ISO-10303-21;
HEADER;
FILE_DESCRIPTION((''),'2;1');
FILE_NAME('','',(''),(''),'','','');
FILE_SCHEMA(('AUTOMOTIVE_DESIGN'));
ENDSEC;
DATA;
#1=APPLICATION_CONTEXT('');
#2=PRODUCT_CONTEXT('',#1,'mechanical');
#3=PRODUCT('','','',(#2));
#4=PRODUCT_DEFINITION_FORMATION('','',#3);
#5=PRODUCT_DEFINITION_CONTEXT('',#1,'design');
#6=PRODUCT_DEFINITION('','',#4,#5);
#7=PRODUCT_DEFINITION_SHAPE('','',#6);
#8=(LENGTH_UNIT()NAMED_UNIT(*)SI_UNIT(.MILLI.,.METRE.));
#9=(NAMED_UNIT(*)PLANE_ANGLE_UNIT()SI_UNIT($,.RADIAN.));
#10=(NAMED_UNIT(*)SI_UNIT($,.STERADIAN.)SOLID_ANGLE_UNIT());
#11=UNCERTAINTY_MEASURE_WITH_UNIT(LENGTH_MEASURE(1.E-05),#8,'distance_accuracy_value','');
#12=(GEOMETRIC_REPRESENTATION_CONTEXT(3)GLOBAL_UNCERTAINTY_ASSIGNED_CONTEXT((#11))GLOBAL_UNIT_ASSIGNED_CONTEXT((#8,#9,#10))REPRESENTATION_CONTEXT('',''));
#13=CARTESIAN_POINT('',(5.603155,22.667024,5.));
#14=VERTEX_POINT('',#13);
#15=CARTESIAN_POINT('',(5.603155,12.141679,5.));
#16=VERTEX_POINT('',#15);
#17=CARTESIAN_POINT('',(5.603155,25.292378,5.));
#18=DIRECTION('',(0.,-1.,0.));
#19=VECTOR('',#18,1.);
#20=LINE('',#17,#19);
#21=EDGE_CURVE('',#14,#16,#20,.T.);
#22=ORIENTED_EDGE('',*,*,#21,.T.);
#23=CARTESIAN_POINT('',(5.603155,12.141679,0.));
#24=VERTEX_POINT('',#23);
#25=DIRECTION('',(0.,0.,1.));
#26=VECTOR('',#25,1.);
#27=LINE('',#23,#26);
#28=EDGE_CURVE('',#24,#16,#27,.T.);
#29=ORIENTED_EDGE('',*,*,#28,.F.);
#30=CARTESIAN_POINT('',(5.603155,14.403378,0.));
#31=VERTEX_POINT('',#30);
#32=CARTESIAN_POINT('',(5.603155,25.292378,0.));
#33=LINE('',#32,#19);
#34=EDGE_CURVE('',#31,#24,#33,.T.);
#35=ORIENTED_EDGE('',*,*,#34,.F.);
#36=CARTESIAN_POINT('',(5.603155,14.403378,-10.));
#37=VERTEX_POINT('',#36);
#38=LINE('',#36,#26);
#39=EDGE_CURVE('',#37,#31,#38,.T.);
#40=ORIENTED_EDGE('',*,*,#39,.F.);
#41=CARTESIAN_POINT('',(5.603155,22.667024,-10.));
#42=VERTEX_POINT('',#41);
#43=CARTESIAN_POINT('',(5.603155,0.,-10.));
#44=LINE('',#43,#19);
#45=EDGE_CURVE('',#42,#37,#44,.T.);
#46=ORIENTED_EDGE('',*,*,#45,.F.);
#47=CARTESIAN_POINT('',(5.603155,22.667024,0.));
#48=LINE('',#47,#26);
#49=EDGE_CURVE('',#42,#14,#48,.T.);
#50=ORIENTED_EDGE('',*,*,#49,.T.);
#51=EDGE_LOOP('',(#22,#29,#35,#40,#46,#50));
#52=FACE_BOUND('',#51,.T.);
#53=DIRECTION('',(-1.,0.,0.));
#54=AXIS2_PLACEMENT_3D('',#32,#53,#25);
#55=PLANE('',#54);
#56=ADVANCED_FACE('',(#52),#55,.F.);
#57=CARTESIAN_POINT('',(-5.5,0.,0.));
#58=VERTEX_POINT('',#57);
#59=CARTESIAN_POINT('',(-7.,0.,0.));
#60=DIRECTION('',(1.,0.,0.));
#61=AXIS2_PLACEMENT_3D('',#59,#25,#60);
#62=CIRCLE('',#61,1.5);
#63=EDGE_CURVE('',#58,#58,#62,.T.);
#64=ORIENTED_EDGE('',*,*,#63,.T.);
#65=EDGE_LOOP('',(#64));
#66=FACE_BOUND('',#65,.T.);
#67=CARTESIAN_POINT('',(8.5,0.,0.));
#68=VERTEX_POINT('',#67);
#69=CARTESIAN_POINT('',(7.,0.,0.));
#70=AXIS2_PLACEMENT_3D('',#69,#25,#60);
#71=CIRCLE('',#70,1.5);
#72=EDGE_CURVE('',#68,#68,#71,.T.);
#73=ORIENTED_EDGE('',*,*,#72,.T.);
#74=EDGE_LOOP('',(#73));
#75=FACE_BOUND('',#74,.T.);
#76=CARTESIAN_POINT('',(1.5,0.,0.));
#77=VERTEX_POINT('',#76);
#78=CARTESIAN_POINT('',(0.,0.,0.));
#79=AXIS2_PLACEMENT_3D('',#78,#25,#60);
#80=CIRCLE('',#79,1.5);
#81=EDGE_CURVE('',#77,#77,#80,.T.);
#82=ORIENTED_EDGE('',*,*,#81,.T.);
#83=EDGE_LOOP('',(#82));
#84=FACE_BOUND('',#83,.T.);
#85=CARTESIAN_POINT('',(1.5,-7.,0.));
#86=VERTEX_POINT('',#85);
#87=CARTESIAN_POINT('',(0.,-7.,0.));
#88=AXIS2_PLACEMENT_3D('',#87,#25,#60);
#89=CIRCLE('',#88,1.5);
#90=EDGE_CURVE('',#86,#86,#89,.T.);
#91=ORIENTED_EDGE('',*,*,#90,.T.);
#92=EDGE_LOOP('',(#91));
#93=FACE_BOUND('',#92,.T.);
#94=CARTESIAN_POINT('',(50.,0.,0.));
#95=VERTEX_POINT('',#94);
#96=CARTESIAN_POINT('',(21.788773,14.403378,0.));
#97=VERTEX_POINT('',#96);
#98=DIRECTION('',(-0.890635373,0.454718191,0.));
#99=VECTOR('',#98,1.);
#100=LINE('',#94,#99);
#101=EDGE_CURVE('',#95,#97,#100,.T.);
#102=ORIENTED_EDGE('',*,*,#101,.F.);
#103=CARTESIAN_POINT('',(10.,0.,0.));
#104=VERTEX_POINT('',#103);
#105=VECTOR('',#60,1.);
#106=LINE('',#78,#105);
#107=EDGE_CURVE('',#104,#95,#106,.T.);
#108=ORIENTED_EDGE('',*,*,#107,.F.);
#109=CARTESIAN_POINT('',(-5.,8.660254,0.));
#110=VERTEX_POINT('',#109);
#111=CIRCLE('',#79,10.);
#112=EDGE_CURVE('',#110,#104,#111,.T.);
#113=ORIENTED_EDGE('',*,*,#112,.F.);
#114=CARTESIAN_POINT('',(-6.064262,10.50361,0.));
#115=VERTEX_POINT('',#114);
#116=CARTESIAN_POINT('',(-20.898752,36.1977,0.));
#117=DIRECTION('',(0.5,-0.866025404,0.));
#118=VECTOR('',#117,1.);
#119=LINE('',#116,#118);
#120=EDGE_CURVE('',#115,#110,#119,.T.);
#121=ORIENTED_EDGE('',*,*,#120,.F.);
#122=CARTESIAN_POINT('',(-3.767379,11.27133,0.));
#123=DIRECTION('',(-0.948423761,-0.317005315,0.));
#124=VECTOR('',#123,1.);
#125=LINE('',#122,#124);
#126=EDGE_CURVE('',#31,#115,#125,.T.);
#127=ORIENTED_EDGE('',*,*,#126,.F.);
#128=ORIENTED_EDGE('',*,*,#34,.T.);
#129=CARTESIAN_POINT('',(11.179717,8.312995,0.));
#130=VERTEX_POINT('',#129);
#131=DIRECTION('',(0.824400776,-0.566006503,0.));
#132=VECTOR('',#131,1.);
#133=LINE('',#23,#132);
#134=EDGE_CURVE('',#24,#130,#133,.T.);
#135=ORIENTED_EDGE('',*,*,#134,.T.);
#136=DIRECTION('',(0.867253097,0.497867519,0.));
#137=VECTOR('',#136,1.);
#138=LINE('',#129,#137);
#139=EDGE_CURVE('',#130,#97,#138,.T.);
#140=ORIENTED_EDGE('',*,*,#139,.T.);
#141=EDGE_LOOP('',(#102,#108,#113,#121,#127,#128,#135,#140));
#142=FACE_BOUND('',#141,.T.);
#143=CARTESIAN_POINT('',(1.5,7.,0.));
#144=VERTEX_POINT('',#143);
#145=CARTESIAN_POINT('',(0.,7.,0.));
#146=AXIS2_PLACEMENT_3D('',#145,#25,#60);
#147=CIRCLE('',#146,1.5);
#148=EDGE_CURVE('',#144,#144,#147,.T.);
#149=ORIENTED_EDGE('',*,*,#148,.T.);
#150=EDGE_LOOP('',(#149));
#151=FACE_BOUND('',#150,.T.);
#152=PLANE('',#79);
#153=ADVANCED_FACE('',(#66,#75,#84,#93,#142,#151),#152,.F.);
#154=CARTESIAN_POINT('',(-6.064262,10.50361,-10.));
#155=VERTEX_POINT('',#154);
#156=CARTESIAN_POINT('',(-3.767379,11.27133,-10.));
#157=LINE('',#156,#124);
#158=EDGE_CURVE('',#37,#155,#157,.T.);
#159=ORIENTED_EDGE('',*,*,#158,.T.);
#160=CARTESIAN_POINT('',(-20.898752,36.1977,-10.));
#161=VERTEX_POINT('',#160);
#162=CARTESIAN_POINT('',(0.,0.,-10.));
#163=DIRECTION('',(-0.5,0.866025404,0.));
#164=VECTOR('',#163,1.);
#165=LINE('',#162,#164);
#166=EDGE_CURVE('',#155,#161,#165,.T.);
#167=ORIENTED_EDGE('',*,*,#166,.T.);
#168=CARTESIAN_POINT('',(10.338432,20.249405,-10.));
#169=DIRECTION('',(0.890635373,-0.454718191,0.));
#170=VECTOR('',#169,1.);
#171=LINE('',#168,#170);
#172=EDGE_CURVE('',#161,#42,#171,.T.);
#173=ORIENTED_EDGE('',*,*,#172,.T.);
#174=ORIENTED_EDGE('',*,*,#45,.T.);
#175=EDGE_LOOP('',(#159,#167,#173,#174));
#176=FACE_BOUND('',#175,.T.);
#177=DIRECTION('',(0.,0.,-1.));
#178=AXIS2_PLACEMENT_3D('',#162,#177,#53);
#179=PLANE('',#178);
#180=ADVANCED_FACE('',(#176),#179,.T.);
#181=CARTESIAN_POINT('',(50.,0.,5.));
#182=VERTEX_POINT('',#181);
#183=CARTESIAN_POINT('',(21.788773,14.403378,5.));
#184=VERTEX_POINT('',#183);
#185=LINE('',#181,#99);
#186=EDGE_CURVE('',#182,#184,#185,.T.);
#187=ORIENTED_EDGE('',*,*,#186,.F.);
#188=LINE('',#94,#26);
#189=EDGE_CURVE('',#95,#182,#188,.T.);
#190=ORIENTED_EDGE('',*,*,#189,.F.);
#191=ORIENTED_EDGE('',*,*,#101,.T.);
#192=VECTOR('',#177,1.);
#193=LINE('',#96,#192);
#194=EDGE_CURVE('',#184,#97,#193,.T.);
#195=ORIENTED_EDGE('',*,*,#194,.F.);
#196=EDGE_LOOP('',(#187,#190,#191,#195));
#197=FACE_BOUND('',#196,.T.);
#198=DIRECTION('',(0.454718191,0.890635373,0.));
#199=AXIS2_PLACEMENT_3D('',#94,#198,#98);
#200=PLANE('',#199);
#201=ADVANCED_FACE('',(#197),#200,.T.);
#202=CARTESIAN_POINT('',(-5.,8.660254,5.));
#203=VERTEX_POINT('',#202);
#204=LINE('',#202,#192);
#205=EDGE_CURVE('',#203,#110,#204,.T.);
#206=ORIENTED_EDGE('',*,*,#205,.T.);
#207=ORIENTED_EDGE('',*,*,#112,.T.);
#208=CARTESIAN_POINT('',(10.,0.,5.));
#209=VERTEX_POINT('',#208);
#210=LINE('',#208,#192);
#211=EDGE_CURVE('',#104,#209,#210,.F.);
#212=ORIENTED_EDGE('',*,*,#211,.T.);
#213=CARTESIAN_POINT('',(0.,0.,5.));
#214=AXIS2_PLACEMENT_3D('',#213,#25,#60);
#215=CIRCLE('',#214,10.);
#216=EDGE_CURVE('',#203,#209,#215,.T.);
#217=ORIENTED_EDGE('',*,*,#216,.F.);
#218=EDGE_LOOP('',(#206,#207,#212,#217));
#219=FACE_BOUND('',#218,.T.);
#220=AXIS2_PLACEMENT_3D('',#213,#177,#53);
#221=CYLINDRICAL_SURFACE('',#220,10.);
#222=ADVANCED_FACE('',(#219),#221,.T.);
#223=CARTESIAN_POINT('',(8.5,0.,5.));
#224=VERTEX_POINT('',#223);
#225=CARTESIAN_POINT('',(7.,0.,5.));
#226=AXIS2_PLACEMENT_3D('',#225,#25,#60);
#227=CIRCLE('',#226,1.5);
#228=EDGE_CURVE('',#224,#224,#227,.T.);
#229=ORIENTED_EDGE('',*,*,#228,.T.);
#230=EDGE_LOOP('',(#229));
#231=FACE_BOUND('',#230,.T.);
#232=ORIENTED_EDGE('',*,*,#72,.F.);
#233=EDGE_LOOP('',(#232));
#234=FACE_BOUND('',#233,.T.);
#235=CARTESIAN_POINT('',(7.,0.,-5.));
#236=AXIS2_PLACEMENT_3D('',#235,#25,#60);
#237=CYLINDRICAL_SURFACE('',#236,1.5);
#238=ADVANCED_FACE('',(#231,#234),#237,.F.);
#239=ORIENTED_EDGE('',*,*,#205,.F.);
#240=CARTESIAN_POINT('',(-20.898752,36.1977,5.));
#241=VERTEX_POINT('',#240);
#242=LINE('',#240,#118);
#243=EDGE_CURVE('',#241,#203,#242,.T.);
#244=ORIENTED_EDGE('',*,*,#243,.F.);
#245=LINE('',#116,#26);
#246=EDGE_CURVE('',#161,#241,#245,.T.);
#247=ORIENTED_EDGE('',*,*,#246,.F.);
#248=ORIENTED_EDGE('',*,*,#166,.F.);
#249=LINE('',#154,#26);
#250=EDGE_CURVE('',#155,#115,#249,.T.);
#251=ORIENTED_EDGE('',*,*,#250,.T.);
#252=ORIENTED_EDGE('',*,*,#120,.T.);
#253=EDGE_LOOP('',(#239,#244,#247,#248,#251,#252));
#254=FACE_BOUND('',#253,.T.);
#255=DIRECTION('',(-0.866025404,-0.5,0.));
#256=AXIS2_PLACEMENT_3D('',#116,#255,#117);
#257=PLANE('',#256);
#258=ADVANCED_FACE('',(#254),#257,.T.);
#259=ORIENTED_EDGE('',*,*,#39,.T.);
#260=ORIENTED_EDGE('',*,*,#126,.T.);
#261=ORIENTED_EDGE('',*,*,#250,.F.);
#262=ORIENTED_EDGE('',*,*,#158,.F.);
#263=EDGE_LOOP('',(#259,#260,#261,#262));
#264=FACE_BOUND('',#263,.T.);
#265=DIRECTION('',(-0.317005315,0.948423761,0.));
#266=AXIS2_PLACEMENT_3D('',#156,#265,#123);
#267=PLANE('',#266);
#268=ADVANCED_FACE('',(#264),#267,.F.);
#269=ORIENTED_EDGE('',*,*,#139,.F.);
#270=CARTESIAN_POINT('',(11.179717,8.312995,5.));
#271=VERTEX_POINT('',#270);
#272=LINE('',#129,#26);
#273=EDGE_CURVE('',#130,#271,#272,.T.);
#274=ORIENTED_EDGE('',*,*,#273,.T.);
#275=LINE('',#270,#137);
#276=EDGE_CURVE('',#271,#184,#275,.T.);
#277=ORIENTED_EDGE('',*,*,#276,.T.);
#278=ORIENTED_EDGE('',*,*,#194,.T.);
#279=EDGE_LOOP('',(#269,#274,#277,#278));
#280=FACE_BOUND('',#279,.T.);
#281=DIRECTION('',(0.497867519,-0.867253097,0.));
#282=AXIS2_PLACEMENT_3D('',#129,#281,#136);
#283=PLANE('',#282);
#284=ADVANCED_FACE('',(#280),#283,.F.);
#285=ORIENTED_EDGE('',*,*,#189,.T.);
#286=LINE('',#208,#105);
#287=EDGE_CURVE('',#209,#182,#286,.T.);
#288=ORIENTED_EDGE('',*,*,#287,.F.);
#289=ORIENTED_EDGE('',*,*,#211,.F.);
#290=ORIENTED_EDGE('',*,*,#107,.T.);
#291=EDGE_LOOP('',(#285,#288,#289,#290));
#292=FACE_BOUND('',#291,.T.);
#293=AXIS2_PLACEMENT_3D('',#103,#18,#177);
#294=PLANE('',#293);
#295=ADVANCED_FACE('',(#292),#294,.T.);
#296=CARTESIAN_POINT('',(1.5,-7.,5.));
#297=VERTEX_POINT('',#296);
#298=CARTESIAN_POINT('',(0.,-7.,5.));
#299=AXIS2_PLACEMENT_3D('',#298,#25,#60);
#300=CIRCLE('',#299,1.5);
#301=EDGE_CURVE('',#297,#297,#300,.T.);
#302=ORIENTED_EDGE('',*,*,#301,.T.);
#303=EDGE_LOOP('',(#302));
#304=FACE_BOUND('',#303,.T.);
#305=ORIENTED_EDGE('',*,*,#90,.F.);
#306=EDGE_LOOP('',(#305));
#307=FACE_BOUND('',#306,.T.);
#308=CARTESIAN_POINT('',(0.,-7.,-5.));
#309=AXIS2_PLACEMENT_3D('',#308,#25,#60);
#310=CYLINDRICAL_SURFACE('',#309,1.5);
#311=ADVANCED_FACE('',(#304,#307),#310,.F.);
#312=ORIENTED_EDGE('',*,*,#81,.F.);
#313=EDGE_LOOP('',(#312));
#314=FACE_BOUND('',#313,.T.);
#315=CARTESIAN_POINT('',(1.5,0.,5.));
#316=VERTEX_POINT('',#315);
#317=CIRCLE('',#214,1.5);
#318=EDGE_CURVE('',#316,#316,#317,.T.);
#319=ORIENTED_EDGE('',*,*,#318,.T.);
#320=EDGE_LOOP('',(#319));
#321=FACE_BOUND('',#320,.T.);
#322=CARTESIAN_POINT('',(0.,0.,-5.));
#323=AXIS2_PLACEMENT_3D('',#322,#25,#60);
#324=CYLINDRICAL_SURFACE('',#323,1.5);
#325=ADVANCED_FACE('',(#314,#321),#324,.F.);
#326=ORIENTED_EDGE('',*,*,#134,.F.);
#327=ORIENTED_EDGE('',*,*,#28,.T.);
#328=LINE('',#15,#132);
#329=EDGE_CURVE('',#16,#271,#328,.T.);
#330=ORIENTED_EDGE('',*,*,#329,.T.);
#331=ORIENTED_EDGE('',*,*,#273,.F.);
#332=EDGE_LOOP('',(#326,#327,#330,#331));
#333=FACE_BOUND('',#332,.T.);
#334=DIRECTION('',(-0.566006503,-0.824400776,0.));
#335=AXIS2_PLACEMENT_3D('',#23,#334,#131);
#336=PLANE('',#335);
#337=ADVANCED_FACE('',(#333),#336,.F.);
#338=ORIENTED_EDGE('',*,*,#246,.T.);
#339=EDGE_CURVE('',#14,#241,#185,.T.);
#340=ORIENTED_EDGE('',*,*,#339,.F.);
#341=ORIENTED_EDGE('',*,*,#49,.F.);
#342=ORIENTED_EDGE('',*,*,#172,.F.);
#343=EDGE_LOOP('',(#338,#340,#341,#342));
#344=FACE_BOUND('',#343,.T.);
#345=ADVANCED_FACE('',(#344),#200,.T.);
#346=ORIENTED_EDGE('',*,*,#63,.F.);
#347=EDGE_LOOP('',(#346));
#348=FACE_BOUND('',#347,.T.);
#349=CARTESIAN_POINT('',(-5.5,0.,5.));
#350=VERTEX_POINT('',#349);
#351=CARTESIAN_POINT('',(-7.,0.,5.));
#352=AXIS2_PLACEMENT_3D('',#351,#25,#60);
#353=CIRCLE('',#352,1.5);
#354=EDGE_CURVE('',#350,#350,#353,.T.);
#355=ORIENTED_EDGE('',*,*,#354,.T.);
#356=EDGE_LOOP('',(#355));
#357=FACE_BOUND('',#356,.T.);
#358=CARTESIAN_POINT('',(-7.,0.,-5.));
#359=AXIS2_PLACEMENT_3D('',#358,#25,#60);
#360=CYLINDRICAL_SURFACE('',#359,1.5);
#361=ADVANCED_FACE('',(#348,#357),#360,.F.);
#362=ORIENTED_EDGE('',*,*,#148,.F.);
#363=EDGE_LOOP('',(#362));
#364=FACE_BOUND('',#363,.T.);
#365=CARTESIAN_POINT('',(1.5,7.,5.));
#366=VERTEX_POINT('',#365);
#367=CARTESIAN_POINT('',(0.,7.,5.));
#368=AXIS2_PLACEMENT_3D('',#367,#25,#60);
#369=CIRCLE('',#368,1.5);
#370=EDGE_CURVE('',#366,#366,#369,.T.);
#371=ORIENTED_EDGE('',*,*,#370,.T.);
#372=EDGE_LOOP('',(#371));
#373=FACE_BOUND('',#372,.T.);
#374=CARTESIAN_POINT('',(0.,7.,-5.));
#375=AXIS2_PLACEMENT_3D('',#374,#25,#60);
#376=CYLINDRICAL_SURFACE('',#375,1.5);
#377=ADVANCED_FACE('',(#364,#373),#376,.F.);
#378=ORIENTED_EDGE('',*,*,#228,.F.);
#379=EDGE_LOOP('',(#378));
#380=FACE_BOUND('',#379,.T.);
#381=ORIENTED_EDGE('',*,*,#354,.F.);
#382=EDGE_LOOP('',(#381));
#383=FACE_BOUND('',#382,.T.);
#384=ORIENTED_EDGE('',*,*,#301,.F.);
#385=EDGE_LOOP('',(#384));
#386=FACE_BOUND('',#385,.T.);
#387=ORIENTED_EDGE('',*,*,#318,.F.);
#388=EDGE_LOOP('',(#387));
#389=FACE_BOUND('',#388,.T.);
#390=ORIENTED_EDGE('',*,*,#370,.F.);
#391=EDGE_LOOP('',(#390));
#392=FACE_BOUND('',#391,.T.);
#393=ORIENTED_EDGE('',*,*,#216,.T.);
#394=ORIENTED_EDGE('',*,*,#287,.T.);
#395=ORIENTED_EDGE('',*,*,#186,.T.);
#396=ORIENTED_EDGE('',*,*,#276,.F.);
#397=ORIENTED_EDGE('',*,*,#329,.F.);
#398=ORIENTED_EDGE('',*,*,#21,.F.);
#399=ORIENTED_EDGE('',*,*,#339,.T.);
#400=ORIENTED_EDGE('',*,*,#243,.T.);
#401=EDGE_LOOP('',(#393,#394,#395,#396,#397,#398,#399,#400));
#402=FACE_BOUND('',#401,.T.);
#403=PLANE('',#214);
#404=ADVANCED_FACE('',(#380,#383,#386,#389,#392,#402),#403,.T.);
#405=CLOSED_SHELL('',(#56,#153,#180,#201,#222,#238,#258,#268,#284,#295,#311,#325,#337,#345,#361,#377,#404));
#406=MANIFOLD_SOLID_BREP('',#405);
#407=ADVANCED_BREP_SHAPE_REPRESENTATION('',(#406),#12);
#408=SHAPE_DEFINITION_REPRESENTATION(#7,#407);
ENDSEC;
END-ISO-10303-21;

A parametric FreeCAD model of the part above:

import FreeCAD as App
import Part
import Sketcher

V = App.Vector
Q = App.Units.Quantity


def add_polygon(sketch, points):
    """Adds a closed chain of lines whose ends are joined by coincident constraints."""
    first, n = sketch.GeometryCount, len(points)
    for a, b in zip(points, points[1:] + points[:1]):
        sketch.addGeometry(Part.LineSegment(App.Vector(*a, 0), App.Vector(*b, 0)), False)
    for i in range(n):
        sketch.addConstraint(Sketcher.Constraint("Coincident", first + i, 2, first + (i + 1) % n, 1))

doc = App.newDocument("Part")
params = doc.addObject("Spreadsheet::Sheet", "Params")
for row, (alias, value) in enumerate([
    ("sketch1_diameter", "20 mm"),
    ("pad1_length", "5 mm"),
    ("sketch2_width", "50 mm"),
    ("pad2_length", "5 mm"),
    ("pocket1_length", "5 mm"),
    ("pad3_length", "10 mm"),
    ("sketch5_diameter", "3 mm"),
    ("pocket2_length", "10 mm"),
    ("sketch6_diameter", "3 mm"),
    ("pocket3_length", "10 mm"),
], start=1):
    params.set(f"A{row}", alias)
    params.set(f"B{row}", "=" + value)
    params.setAlias(f"B{row}", alias)

body = doc.addObject("PartDesign::Body", "Body")

# Sketch on XY plane
sketch1 = body.newObject("Sketcher::SketchObject", "Sketch")
sketch1.AttachmentSupport = (doc.getObject("XY_Plane"), [""])
sketch1.MapMode = "FlatFace"
sketch1.addGeometry(Part.Circle(V(0, 0, 0), V(0, 0, 1), 10), False)
sketch1.addConstraint(Sketcher.Constraint("Coincident", 0, 3, -1, 1))
sketch1.addConstraint(Sketcher.Constraint("Diameter", 0, 20.0))
sketch1.setExpression("Constraints[1]", "Params.sketch1_diameter")
pad1 = body.newObject("PartDesign::Pad", "Pad")
pad1.Profile = sketch1
pad1.setExpression("Length", "Params.pad1_length")

# Sketch on XY plane
sketch2 = body.newObject("Sketcher::SketchObject", "Sketch001")
sketch2.AttachmentSupport = (doc.getObject("XY_Plane"), [""])
sketch2.MapMode = "FlatFace"
sketch2.AttachmentOffset = App.Placement(V(0, 0, 5), App.Rotation())
add_polygon(sketch2, [(50, 0), (-21, 36), (0, 0)])  # lines 0-2
sketch2.addConstraint(Sketcher.Constraint("Horizontal", 2))
sketch2.addConstraint(Sketcher.Constraint("Coincident", 1, 2, -1, 1))
sketch2.addConstraint(Sketcher.Constraint("DistanceX", 2, 1, 2, 2, 50.0))
sketch2.addConstraint(Sketcher.Constraint("Angle", 1, Q("-60 deg")))
sketch2.addConstraint(Sketcher.Constraint("DistanceY", -1, 1, 0, 2, 36.1977))
sketch2.setExpression("Constraints[5]", "Params.sketch2_width")
pad2 = body.newObject("PartDesign::Pad", "Pad001")
pad2.Profile = sketch2
pad2.setExpression("Length", "Params.pad2_length")
pad2.Reversed = True

# Sketch on XY plane
sketch3 = body.newObject("Sketcher::SketchObject", "Sketch002")
sketch3.AttachmentSupport = (doc.getObject("XY_Plane"), [""])
sketch3.MapMode = "FlatFace"
sketch3.AttachmentOffset = App.Placement(V(0, 0, 5), App.Rotation())
add_polygon(sketch3, [(6, 25), (6, 12), (11, 8), (25, 16)])  # lines 0-3
sketch3.addConstraint(Sketcher.Constraint("Vertical", 0))
sketch3.addConstraint(Sketcher.Constraint("DistanceY", 0, 2, 0, 1, 13.150699))
sketch3.addConstraint(Sketcher.Constraint("DistanceY", 1, 2, 2, 2, 7.740601))
sketch3.addConstraint(Sketcher.Constraint("Distance", 2, 15.547512))
sketch3.addConstraint(Sketcher.Constraint("DistanceY", -1, 1, 0, 2, 12.141679))
sketch3.addConstraint(Sketcher.Constraint("DistanceX", 0, 2, 2, 2, 19.06019))
sketch3.addConstraint(Sketcher.Constraint("Distance", 1, 6.764382))
sketch3.addConstraint(Sketcher.Constraint("DistanceX", -1, 1, 0, 2, 5.603155))
pocket1 = body.newObject("PartDesign::Pocket", "Pocket")
pocket1.Profile = sketch3
pocket1.setExpression("Length", "Params.pocket1_length")

# Sketch on XY plane
sketch4 = body.newObject("Sketcher::SketchObject", "Sketch003")
sketch4.AttachmentSupport = (doc.getObject("XY_Plane"), [""])
sketch4.MapMode = "FlatFace"
add_polygon(sketch4, [(6, 23), (6, 14), (-6, 11), (-21, 36)])  # lines 0-3
sketch4.addConstraint(Sketcher.Constraint("Vertical", 0))
sketch4.addConstraint(Sketcher.Constraint("Angle", 2, Q("120 deg")))
sketch4.addConstraint(Sketcher.Constraint("DistanceY", -1, 1, 2, 2, 36.1977))
sketch4.addConstraint(Sketcher.Constraint("Distance", 2, 29.66898))
sketch4.addConstraint(Sketcher.Constraint("Distance", 3, 29.75618))
sketch4.addConstraint(Sketcher.Constraint("DistanceY", 0, 2, 0, 1, 8.263645))
sketch4.addConstraint(Sketcher.Constraint("DistanceY", -1, 1, 0, 2, 14.403378))
sketch4.addConstraint(Sketcher.Constraint("DistanceX", 1, 2, -1, 1, 6.064262))
pad3 = body.newObject("PartDesign::Pad", "Pad002")
pad3.Profile = sketch4
pad3.setExpression("Length", "Params.pad3_length")
pad3.Reversed = True

# Sketch on XY plane
sketch5 = body.newObject("Sketcher::SketchObject", "Sketch004")
sketch5.AttachmentSupport = (doc.getObject("XY_Plane"), [""])
sketch5.MapMode = "FlatFace"
sketch5.AttachmentOffset = App.Placement(V(0, 0, 5), App.Rotation())
sketch5.addGeometry(Part.Circle(V(0, 7, 0), V(0, 0, 1), 1.5), False)
sketch5.addGeometry(Part.Circle(V(7, 0, 0), V(0, 0, 1), 1.5), False)
sketch5.addGeometry(Part.Circle(V(0, -7, 0), V(0, 0, 1), 1.5), False)
sketch5.addGeometry(Part.Circle(V(-7, 0, 0), V(0, 0, 1), 1.5), False)
sketch5.addConstraint(Sketcher.Constraint("Equal", 0, 1))
sketch5.addConstraint(Sketcher.Constraint("Equal", 1, 2))
sketch5.addConstraint(Sketcher.Constraint("Equal", 2, 3))
sketch5.addConstraint(Sketcher.Constraint("Symmetric", 0, 3, 2, 3, -1, 1))
sketch5.addConstraint(Sketcher.Constraint("Symmetric", 1, 3, 3, 3, -1, 1))
sketch5.addConstraint(Sketcher.Constraint("PointOnObject", 0, 3, -2))
sketch5.addConstraint(Sketcher.Constraint("PointOnObject", 1, 3, -1))
sketch5.addConstraint(Sketcher.Constraint("Diameter", 0, 3.0))
sketch5.addConstraint(Sketcher.Constraint("DistanceY", -1, 1, 0, 3, 7.0))
sketch5.addConstraint(Sketcher.Constraint("DistanceX", -1, 1, 1, 3, 7.0))
sketch5.setExpression("Constraints[7]", "Params.sketch5_diameter")
pocket2 = body.newObject("PartDesign::Pocket", "Pocket001")
pocket2.Profile = sketch5
pocket2.setExpression("Length", "Params.pocket2_length")

# Sketch on XY plane
sketch6 = body.newObject("Sketcher::SketchObject", "Sketch005")
sketch6.AttachmentSupport = (doc.getObject("XY_Plane"), [""])
sketch6.MapMode = "FlatFace"
sketch6.AttachmentOffset = App.Placement(V(0, 0, 5), App.Rotation())
sketch6.addGeometry(Part.Circle(V(0, 0, 0), V(0, 0, 1), 1.5), False)
sketch6.addConstraint(Sketcher.Constraint("Coincident", 0, 3, -1, 1))
sketch6.addConstraint(Sketcher.Constraint("Diameter", 0, 3.0))
sketch6.setExpression("Constraints[1]", "Params.sketch6_diameter")
pocket3 = body.newObject("PartDesign::Pocket", "Pocket002")
pocket3.Profile = sketch6
pocket3.setExpression("Length", "Params.pocket3_length")

doc.recompute()
